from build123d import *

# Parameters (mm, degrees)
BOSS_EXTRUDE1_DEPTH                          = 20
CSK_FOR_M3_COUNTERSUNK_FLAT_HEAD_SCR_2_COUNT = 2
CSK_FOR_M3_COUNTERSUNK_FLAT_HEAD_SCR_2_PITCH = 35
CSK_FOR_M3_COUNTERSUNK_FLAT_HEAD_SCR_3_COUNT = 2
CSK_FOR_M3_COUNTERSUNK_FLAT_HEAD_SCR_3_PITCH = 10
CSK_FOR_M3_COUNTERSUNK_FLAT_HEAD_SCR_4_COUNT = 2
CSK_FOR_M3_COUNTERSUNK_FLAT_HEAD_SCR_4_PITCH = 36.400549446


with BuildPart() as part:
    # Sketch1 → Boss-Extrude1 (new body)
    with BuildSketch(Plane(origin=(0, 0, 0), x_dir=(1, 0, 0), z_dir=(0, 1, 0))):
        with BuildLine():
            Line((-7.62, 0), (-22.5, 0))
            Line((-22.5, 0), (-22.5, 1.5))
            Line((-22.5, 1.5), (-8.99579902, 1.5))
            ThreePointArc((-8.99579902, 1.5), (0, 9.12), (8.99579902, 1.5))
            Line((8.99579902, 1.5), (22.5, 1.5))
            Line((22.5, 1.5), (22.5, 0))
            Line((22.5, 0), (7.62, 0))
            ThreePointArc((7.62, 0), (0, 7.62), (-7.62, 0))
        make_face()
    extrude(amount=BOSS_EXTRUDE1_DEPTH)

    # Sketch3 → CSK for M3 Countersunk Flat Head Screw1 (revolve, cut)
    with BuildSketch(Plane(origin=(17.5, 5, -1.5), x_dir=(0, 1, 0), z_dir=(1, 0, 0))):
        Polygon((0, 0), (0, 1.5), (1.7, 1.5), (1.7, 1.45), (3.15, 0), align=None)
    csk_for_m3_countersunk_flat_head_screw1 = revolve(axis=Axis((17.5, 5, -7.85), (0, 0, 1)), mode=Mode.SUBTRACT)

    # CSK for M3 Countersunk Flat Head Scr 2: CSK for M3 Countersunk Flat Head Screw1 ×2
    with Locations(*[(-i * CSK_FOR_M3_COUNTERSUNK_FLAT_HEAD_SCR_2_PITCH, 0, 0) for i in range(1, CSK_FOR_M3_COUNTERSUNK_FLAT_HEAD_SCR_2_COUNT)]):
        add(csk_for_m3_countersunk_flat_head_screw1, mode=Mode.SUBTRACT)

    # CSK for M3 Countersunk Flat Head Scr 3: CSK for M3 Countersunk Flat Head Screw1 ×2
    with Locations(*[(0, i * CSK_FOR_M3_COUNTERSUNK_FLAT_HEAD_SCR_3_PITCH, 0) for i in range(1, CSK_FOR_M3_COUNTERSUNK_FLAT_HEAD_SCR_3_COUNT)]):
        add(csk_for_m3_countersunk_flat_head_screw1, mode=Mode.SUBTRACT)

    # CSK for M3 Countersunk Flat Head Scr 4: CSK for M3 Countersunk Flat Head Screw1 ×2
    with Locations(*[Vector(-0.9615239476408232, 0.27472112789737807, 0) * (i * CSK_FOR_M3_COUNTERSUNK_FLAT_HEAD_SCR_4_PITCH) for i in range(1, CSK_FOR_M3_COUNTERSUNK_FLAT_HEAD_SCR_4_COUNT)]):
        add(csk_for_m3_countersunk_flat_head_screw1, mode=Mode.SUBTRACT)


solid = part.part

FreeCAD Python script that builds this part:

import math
import FreeCAD as App
import Part
import Sketcher
from FreeCAD import Vector
Q = App.Units.Quantity

doc = App.newDocument("Part")
body = doc.addObject("PartDesign::Body", "Body")

sketch1 = body.newObject("Sketcher::SketchObject", "Sketch")
sketch1.AttachmentSupport = (doc.getObject("XZ_Plane"), [""])
sketch1.MapMode = "FlatFace"
sketch1.addGeometry(Part.LineSegment(Vector(-22.5, 0, 0), Vector(-7.6, 0, 0)), False)
sketch1.addGeometry(Part.ArcOfCircle(Part.Circle(Vector(0, 0, 0), Vector(0, 0, 1), 7.6), math.radians(180), math.radians(360)), False)
sketch1.addGeometry(Part.LineSegment(Vector(7.6, 0, 0), Vector(22.5, 0, 0)), False)
sketch1.addGeometry(Part.LineSegment(Vector(22.5, 0, 0), Vector(22.5, -1.5, 0)), False)
sketch1.addGeometry(Part.LineSegment(Vector(22.5, -1.5, 0), Vector(9, -1.5, 0)), False)
sketch1.addGeometry(Part.ArcOfCircle(Part.Circle(Vector(0, 0, 0), Vector(0, 0, 1), 9.1), math.radians(-171), math.radians(-9)), False)
sketch1.addGeometry(Part.LineSegment(Vector(-9, -1.5, 0), Vector(-22.5, -1.5, 0)), False)
sketch1.addGeometry(Part.LineSegment(Vector(-22.5, -1.5, 0), Vector(-22.5, 0, 0)), False)
sketch1.addConstraint(Sketcher.Constraint("Coincident", 0, 2, 1, 1))
sketch1.addConstraint(Sketcher.Constraint("Coincident", 1, 2, 2, 1))
sketch1.addConstraint(Sketcher.Constraint("Coincident", 2, 2, 3, 1))
sketch1.addConstraint(Sketcher.Constraint("Coincident", 3, 2, 4, 1))
sketch1.addConstraint(Sketcher.Constraint("Coincident", 4, 2, 5, 2))
sketch1.addConstraint(Sketcher.Constraint("Coincident", 5, 1, 6, 1))
sketch1.addConstraint(Sketcher.Constraint("Coincident", 6, 2, 7, 1))
sketch1.addConstraint(Sketcher.Constraint("Coincident", 7, 2, 0, 1))
sketch1.addConstraint(Sketcher.Constraint("Horizontal", 0))
sketch1.addConstraint(Sketcher.Constraint("Horizontal", 2))
sketch1.addConstraint(Sketcher.Constraint("Vertical", 3))
sketch1.addConstraint(Sketcher.Constraint("Horizontal", 4))
sketch1.addConstraint(Sketcher.Constraint("Horizontal", 6))
sketch1.addConstraint(Sketcher.Constraint("Vertical", 7))
sketch1.addConstraint(Sketcher.Constraint("Coincident", 1, 3, -1, 1))
sketch1.addConstraint(Sketcher.Constraint("Coincident", 5, 3, -1, 1))
sketch1.addConstraint(Sketcher.Constraint("Symmetric", 2, 2, 7, 2, -1, 1))
sketch1.addConstraint(Sketcher.Constraint("PointOnObject", 0, 2, -1))
sketch1.addConstraint(Sketcher.Constraint("Horizontal", 4, 2, 5, 1))
sketch1.addConstraint(Sketcher.Constraint("Radius", 1, 7.62))
sketch1.addConstraint(Sketcher.Constraint("Radius", 5, 9.12))
sketch1.addConstraint(Sketcher.Constraint("DistanceY", 3, 2, 3, 1, 1.5))
sketch1.addConstraint(Sketcher.Constraint("DistanceX", 0, 1, 0, 2, 14.88))
pad1 = body.newObject("PartDesign::Pad", "Pad")
pad1.Profile = sketch1
pad1.Length = 20
pad1.Reversed = True

sketch2 = body.newObject("Sketcher::SketchObject", "Sketch001")
sketch2.AttachmentSupport = (doc.getObject("YZ_Plane"), [""])
sketch2.MapMode = "FlatFace"
sketch2.AttachmentOffset = App.Placement(Vector(0, 0, 17.5), App.Rotation())
sketch2.addGeometry(Part.LineSegment(Vector(5, 0, 0), Vector(5, -1.5, 0)), False)
sketch2.addGeometry(Part.LineSegment(Vector(5, -1.5, 0), Vector(8.15, -1.5, 0)), False)
sketch2.addGeometry(Part.LineSegment(Vector(8.15, -1.5, 0), Vector(6.7, -0.05, 0)), False)
sketch2.addGeometry(Part.LineSegment(Vector(6.7, -0.05, 0), Vector(6.7, 0, 0)), False)
sketch2.addGeometry(Part.LineSegment(Vector(6.7, 0, 0), Vector(5, 0, 0)), False)
sketch2.addGeometry(Part.LineSegment(Vector(5, -1.5, 0), Vector(5, 0, 0)), True)
sketch2.addConstraint(Sketcher.Constraint("Coincident", 0, 2, 1, 1))
sketch2.addConstraint(Sketcher.Constraint("Coincident", 1, 2, 2, 1))
sketch2.addConstraint(Sketcher.Constraint("Coincident", 2, 2, 3, 1))
sketch2.addConstraint(Sketcher.Constraint("Coincident", 3, 2, 4, 1))
sketch2.addConstraint(Sketcher.Constraint("Coincident", 4, 2, 0, 1))
sketch2.addConstraint(Sketcher.Constraint("Vertical", 0))
sketch2.addConstraint(Sketcher.Constraint("Horizontal", 1))
sketch2.addConstraint(Sketcher.Constraint("Vertical", 3))
sketch2.addConstraint(Sketcher.Constraint("Horizontal", 4))
sketch2.addConstraint(Sketcher.Constraint("Vertical", 5))
sketch2.addConstraint(Sketcher.Constraint("Coincident", 5, 1, 0, 2))
sketch2.addConstraint(Sketcher.Constraint("PointOnObject", 3, 2, -1))
sketch2.addConstraint(Sketcher.Constraint("PointOnObject", 5, 2, -1))
sketch2.addConstraint(Sketcher.Constraint("Angle", 2, Q("135 deg")))
sketch2.addConstraint(Sketcher.Constraint("DistanceX", 4, 2, 4, 1, 1.7))
sketch2.addConstraint(Sketcher.Constraint("DistanceY", 0, 2, 0, 1, 1.5))
sketch2.addConstraint(Sketcher.Constraint("DistanceX", -1, 1, 0, 2, 5.0))
sketch2.addConstraint(Sketcher.Constraint("DistanceX", 1, 1, 1, 2, 3.15))
groove = body.newObject("PartDesign::Groove", "Groove")
groove.Profile = sketch2
groove.ReferenceAxis = (sketch2, ["Axis0"])
groove.Angle = 360
doc.recompute()

linearpattern = body.newObject("PartDesign::LinearPattern", "LinearPattern")
linearpattern.Originals = [groove]
linearpattern.Direction = (doc.getObject("X_Axis"), [""])
linearpattern.Mode = "offset"
linearpattern.Offset = 35
linearpattern.Occurrences = 2
linearpattern.Reversed = True
body.Tip = linearpattern
doc.recompute()

linearpattern2 = body.newObject("PartDesign::LinearPattern", "LinearPattern001")
linearpattern2.Originals = [groove]
linearpattern2.Direction = (doc.getObject("Y_Axis"), [""])
linearpattern2.Mode = "offset"
linearpattern2.Offset = 10
linearpattern2.Occurrences = 2
body.Tip = linearpattern2
doc.recompute()

datumline = body.newObject("PartDesign::Line", "DatumLine")
datumline.Placement = App.Placement(Vector(0, 0, 0), App.Rotation(Vector(0, 0, 1), Vector(-0.961523948, 0.274721128, 0)))
linearpattern3 = body.newObject("PartDesign::LinearPattern", "LinearPattern002")
linearpattern3.Originals = [groove]
linearpattern3.Direction = (datumline, [""])
linearpattern3.Mode = "offset"
linearpattern3.Offset = 36.400549
linearpattern3.Occurrences = 2
body.Tip = linearpattern3

doc.recompute()
